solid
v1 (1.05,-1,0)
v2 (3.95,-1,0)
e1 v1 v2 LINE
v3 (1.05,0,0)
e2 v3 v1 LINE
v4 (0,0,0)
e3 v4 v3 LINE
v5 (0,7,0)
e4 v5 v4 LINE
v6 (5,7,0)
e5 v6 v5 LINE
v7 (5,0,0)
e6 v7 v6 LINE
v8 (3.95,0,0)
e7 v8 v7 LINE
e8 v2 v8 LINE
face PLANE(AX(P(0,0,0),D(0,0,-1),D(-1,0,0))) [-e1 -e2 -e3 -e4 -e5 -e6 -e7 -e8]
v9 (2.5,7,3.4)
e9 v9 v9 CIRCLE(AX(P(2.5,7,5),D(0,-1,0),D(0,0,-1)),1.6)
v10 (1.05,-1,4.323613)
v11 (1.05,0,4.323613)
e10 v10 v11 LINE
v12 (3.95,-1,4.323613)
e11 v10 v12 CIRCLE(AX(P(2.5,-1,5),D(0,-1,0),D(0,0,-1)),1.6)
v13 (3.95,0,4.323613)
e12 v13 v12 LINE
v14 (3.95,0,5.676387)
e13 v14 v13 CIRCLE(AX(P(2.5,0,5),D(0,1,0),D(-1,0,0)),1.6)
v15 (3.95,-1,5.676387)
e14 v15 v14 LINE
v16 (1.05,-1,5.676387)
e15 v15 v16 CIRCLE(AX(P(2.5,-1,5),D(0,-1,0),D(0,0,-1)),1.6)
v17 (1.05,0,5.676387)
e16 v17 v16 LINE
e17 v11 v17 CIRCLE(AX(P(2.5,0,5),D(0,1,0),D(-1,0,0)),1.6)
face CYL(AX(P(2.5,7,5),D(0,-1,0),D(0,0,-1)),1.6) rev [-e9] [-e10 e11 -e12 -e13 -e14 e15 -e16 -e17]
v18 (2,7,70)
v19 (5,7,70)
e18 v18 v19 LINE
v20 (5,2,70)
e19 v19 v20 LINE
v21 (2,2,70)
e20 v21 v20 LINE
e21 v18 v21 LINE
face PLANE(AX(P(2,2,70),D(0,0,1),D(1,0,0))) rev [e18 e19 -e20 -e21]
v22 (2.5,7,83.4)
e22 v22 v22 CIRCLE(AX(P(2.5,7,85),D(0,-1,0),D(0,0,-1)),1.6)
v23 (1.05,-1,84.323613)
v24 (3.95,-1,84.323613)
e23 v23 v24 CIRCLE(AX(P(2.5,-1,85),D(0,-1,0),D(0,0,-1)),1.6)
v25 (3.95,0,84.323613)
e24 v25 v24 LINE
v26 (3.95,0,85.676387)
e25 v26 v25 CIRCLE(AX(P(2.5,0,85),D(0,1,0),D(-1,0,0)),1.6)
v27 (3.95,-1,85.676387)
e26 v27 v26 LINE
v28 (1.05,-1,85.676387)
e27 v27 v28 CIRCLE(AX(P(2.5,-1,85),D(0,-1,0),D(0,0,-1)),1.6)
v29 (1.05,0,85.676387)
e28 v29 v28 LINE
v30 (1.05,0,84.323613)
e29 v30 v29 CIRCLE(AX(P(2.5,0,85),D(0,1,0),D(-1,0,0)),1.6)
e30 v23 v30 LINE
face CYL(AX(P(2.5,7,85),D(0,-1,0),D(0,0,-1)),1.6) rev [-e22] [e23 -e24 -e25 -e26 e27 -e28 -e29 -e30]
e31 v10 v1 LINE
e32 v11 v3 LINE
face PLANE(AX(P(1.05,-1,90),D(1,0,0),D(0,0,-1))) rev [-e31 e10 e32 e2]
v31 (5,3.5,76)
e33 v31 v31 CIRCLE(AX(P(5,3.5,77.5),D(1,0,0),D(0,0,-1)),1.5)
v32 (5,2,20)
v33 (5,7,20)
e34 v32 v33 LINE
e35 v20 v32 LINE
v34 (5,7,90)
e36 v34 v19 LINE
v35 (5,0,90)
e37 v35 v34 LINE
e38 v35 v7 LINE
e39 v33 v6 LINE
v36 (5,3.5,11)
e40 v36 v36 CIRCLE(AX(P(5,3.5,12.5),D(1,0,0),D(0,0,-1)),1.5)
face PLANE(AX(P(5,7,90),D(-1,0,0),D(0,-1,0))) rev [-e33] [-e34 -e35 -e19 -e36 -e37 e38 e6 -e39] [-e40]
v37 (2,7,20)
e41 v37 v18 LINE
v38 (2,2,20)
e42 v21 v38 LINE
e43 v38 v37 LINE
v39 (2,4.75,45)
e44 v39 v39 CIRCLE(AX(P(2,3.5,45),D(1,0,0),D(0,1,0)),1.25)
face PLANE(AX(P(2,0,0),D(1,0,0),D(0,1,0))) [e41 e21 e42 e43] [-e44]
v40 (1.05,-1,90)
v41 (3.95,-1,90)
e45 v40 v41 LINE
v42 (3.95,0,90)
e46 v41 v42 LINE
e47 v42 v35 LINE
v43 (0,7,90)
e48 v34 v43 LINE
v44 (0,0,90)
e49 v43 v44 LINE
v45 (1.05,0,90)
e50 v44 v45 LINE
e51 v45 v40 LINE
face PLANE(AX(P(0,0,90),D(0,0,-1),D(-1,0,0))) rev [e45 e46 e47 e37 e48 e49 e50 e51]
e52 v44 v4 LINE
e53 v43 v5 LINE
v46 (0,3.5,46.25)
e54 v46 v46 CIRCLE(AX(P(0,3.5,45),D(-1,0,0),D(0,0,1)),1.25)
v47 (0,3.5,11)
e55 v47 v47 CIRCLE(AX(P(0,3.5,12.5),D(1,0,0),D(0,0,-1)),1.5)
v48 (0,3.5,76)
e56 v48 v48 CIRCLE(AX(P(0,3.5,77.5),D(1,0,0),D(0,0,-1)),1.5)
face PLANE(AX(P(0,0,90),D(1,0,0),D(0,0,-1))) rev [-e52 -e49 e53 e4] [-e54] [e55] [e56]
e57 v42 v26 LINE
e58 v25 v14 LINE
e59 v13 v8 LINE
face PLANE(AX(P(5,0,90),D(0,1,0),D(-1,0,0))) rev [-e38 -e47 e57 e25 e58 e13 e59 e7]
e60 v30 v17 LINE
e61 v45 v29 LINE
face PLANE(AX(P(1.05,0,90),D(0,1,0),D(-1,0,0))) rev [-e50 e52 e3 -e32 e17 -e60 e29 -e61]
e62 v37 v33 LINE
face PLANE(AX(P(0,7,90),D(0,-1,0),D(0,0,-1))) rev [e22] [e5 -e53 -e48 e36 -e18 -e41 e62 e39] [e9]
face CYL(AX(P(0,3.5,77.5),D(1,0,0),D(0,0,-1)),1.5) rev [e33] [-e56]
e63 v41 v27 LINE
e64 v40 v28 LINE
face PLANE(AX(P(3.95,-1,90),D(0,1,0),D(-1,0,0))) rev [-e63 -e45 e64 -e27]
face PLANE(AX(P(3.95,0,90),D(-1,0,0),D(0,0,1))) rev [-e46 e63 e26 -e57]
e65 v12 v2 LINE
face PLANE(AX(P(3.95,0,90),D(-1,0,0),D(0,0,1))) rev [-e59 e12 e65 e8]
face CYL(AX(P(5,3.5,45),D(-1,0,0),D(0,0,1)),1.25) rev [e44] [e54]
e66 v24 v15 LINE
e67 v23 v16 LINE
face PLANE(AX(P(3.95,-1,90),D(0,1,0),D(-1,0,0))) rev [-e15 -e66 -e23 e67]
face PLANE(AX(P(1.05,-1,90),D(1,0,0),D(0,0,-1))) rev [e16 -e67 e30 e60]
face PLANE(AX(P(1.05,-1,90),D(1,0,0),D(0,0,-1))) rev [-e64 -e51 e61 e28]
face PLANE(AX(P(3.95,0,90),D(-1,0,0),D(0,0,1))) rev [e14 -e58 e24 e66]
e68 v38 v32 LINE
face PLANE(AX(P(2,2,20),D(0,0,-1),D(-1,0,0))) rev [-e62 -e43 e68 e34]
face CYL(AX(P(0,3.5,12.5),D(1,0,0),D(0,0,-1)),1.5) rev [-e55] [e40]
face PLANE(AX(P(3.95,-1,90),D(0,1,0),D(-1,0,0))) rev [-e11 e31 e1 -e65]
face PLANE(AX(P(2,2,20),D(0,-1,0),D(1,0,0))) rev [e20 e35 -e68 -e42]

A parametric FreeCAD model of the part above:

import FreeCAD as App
import Part
import Sketcher
from FreeCAD import Vector

doc = App.newDocument("Part")
body = doc.addObject("PartDesign::Body", "Body")

# Sketch on XY plane
sketch1 = body.newObject("Sketcher::SketchObject", "Sketch")
sketch1.AttachmentSupport = (doc.getObject("XY_Plane"), [""])
sketch1.MapMode = "FlatFace"
sketch1.addGeometry(Part.LineSegment(Vector(5, 7, 0), Vector(0, 7, 0)), False)
sketch1.addGeometry(Part.LineSegment(Vector(0, 7, 0), Vector(0, 0, 0)), False)
sketch1.addGeometry(Part.LineSegment(Vector(0, 0, 0), Vector(1.05, 0, 0)), False)
sketch1.addGeometry(Part.LineSegment(Vector(1.05, 0, 0), Vector(1.05, -1, 0)), False)
sketch1.addGeometry(Part.LineSegment(Vector(1.05, -1, 0), Vector(3.95, -1, 0)), False)
sketch1.addGeometry(Part.LineSegment(Vector(3.95, -1, 0), Vector(3.95, 0, 0)), False)
sketch1.addGeometry(Part.LineSegment(Vector(3.95, 0, 0), Vector(5, 0, 0)), False)
sketch1.addGeometry(Part.LineSegment(Vector(5, 0, 0), Vector(5, 7, 0)), False)
sketch1.addConstraint(Sketcher.Constraint("Coincident", 0, 2, 1, 1))
sketch1.addConstraint(Sketcher.Constraint("Coincident", 1, 2, 2, 1))
sketch1.addConstraint(Sketcher.Constraint("Coincident", 2, 2, 3, 1))
sketch1.addConstraint(Sketcher.Constraint("Coincident", 3, 2, 4, 1))
sketch1.addConstraint(Sketcher.Constraint("Coincident", 4, 2, 5, 1))
sketch1.addConstraint(Sketcher.Constraint("Coincident", 5, 2, 6, 1))
sketch1.addConstraint(Sketcher.Constraint("Coincident", 6, 2, 7, 1))
sketch1.addConstraint(Sketcher.Constraint("Coincident", 7, 2, 0, 1))
sketch1.addConstraint(Sketcher.Constraint("Horizontal", 0))
sketch1.addConstraint(Sketcher.Constraint("Vertical", 1))
sketch1.addConstraint(Sketcher.Constraint("Horizontal", 2))
sketch1.addConstraint(Sketcher.Constraint("Vertical", 3))
sketch1.addConstraint(Sketcher.Constraint("Horizontal", 4))
sketch1.addConstraint(Sketcher.Constraint("Vertical", 5))
sketch1.addConstraint(Sketcher.Constraint("Horizontal", 6))
sketch1.addConstraint(Sketcher.Constraint("Vertical", 7))
sketch1.addConstraint(Sketcher.Constraint("Coincident", 1, 2, -1, 1))
sketch1.addConstraint(Sketcher.Constraint("PointOnObject", 5, 2, -1))
sketch1.addConstraint(Sketcher.Constraint("Equal", 2, 6))
sketch1.addConstraint(Sketcher.Constraint("DistanceX", 0, 2, 0, 1, 5.0))
sketch1.addConstraint(Sketcher.Constraint("DistanceY", 1, 2, 1, 1, 7.0))
sketch1.addConstraint(Sketcher.Constraint("DistanceY", 3, 2, 3, 1, 1.0))
sketch1.addConstraint(Sketcher.Constraint("DistanceX", 4, 1, 4, 2, 2.9))
pad1 = body.newObject("PartDesign::Pad", "Pad")
pad1.Profile = sketch1
pad1.Length = 90

# Sketch on YZ plane
sketch2 = body.newObject("Sketcher::SketchObject", "Sketch001")
sketch2.AttachmentSupport = (doc.getObject("YZ_Plane"), [""])
sketch2.MapMode = "FlatFace"
sketch2.AttachmentOffset = App.Placement(Vector(0, 0, 5), App.Rotation())
sketch2.addGeometry(Part.Circle(Vector(3.5, 12.5, 0), Vector(0, 0, 1), 1.5), False)
sketch2.addGeometry(Part.Circle(Vector(3.5, 77.5, 0), Vector(0, 0, 1), 1.5), False)
sketch2.addConstraint(Sketcher.Constraint("Equal", 0, 1))
sketch2.addConstraint(Sketcher.Constraint("Vertical", 0, 3, 1, 3))
sketch2.addConstraint(Sketcher.Constraint("Diameter", 0, 3.0))
sketch2.addConstraint(Sketcher.Constraint("DistanceY", 0, 3, 1, 3, 65.0))
sketch2.addConstraint(Sketcher.Constraint("DistanceX", -1, 1, 0, 3, 3.5))
sketch2.addConstraint(Sketcher.Constraint("DistanceY", -1, 1, 0, 3, 12.5))
pocket1 = body.newObject("PartDesign::Pocket", "Pocket")
pocket1.Profile = sketch2
pocket1.Type = "ThroughAll"

# Sketch on XZ plane
sketch3 = body.newObject("Sketcher::SketchObject", "Sketch002")
sketch3.AttachmentSupport = (doc.getObject("XZ_Plane"), [""])
sketch3.MapMode = "FlatFace"
sketch3.AttachmentOffset = App.Placement(Vector(0, 0, 1), App.Rotation())
sketch3.addGeometry(Part.Circle(Vector(2.5, 85, 0), Vector(0, 0, 1), 1.6), False)
sketch3.addGeometry(Part.Circle(Vector(2.5, 5, 0), Vector(0, 0, 1), 1.6), False)
sketch3.addConstraint(Sketcher.Constraint("Equal", 0, 1))
sketch3.addConstraint(Sketcher.Constraint("Vertical", 0, 3, 1, 3))
sketch3.addConstraint(Sketcher.Constraint("Diameter", 0, 3.2))
sketch3.addConstraint(Sketcher.Constraint("DistanceY", -1, 1, 0, 3, 85.0))
sketch3.addConstraint(Sketcher.Constraint("DistanceY", -1, 1, 1, 3, 5.0))
sketch3.addConstraint(Sketcher.Constraint("DistanceX", -1, 1, 0, 3, 2.5))
pocket2 = body.newObject("PartDesign::Pocket", "Pocket001")
pocket2.Profile = sketch3
pocket2.Type = "ThroughAll"

# Sketch on YZ plane
sketch4 = body.newObject("Sketcher::SketchObject", "Sketch003")
sketch4.AttachmentSupport = (doc.getObject("YZ_Plane"), [""])
sketch4.MapMode = "FlatFace"
sketch4.AttachmentOffset = App.Placement(Vector(0, 0, 5), App.Rotation())
sketch4.addGeometry(Part.LineSegment(Vector(7, 70, 0), Vector(2, 70, 0)), False)
sketch4.addGeometry(Part.LineSegment(Vector(2, 70, 0), Vector(2, 20, 0)), False)
sketch4.addGeometry(Part.LineSegment(Vector(2, 20, 0), Vector(7, 20, 0)), False)
sketch4.addGeometry(Part.LineSegment(Vector(7, 20, 0), Vector(7, 70, 0)), False)
sketch4.addConstraint(Sketcher.Constraint("Coincident", 0, 2, 1, 1))
sketch4.addConstraint(Sketcher.Constraint("Coincident", 1, 2, 2, 1))
sketch4.addConstraint(Sketcher.Constraint("Coincident", 2, 2, 3, 1))
sketch4.addConstraint(Sketcher.Constraint("Coincident", 3, 2, 0, 1))
sketch4.addConstraint(Sketcher.Constraint("Horizontal", 0))
sketch4.addConstraint(Sketcher.Constraint("Vertical", 1))
sketch4.addConstraint(Sketcher.Constraint("Horizontal", 2))
sketch4.addConstraint(Sketcher.Constraint("Vertical", 3))
sketch4.addConstraint(Sketcher.Constraint("DistanceX", 0, 2, 0, 1, 5.0))
sketch4.addConstraint(Sketcher.Constraint("DistanceY", 1, 2, 1, 1, 50.0))
sketch4.addConstraint(Sketcher.Constraint("DistanceX", -1, 1, 0, 2, 2.0))
sketch4.addConstraint(Sketcher.Constraint("DistanceY", -1, 1, 0, 2, 70.0))
pocket3 = body.newObject("PartDesign::Pocket", "Pocket002")
pocket3.Profile = sketch4
pocket3.Length = 3

# Sketch on YZ plane
sketch5 = body.newObject("Sketcher::SketchObject", "Sketch004")
sketch5.AttachmentSupport = (doc.getObject("YZ_Plane"), [""])
sketch5.MapMode = "FlatFace"
sketch5.addGeometry(Part.Circle(Vector(3.5, 45, 0), Vector(0, 0, 1), 1.25), False)
sketch5.addConstraint(Sketcher.Constraint("Diameter", 0, 2.5))
sketch5.addConstraint(Sketcher.Constraint("DistanceY", -1, 1, 0, 3, 45.0))
sketch5.addConstraint(Sketcher.Constraint("DistanceX", -1, 1, 0, 3, 3.5))
pocket4 = body.newObject("PartDesign::Pocket", "Pocket003")
pocket4.Profile = sketch5
pocket4.Type = "ThroughAll"
pocket4.Reversed = True

doc.recompute()
